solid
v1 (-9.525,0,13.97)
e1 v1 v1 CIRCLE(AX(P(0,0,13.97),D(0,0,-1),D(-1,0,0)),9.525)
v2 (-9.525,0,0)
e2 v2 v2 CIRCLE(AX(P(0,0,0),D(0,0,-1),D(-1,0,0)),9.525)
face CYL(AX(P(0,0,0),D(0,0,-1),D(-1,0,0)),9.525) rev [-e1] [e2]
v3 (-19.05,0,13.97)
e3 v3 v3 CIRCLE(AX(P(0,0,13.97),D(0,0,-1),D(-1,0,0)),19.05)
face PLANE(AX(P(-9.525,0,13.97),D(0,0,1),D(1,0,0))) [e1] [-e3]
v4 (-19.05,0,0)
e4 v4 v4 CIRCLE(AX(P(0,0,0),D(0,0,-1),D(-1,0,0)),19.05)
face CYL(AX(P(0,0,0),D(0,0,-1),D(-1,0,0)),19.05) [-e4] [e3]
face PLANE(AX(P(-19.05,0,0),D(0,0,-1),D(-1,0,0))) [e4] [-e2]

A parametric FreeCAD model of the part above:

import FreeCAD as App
import Part
import Sketcher

V = App.Vector
Q = App.Units.Quantity

doc = App.newDocument("Part")
params = doc.addObject("Spreadsheet::Sheet", "Params")
for row, (alias, value) in enumerate([
    ("sketch1_height", "0.55 in"),
    ("sketch1_width", "0.375 in"),
    ("revolution_angle", "360 deg"),
], start=1):
    params.set(f"A{row}", alias)
    params.set(f"B{row}", "=" + value)
    params.setAlias(f"B{row}", alias)

body = doc.addObject("PartDesign::Body", "Body")

# Sketch on XZ plane
sketch1 = doc.addObject("Sketcher::SketchObject", "Sketch")
body.addObject(sketch1)
sketch1.AttachmentSupport = (doc.XZ_Plane, [""])
sketch1.MapMode = "FlatFace"
sketch1.addGeometry(Part.LineSegment(V(-19, 0, 0), V(-19, 14, 0)), False)
sketch1.addGeometry(Part.LineSegment(V(-19, 14, 0), V(-10, 14, 0)), False)
sketch1.addGeometry(Part.LineSegment(V(-10, 14, 0), V(-10, 0, 0)), False)
sketch1.addGeometry(Part.LineSegment(V(-10, 0, 0), V(-19, 0, 0)), False)
sketch1.addConstraint(Sketcher.Constraint("Coincident", 0, 2, 1, 1))
sketch1.addConstraint(Sketcher.Constraint("Coincident", 1, 2, 2, 1))
sketch1.addConstraint(Sketcher.Constraint("Coincident", 2, 2, 3, 1))
sketch1.addConstraint(Sketcher.Constraint("Coincident", 3, 2, 0, 1))
sketch1.addConstraint(Sketcher.Constraint("Vertical", 0))
sketch1.addConstraint(Sketcher.Constraint("Horizontal", 1))
sketch1.addConstraint(Sketcher.Constraint("Vertical", 2))
sketch1.addConstraint(Sketcher.Constraint("Horizontal", 3))
sketch1.addConstraint(Sketcher.Constraint("PointOnObject", 2, 2, -1))
sketch1.addConstraint(Sketcher.Constraint("DistanceY", 0, 1, 0, 2, Q("0.55 in")))
sketch1.addConstraint(Sketcher.Constraint("DistanceX", 1, 1, 1, 2, Q("0.375 in")))
sketch1.addConstraint(Sketcher.Constraint("DistanceX", 0, 2, -1, 1, Q("0.75 in")))
sketch1.setExpression("Constraints[9]", "Params.sketch1_height")
sketch1.setExpression("Constraints[10]", "Params.sketch1_width")
revolution = doc.addObject("PartDesign::Revolution", "Revolution")
body.addObject(revolution)
revolution.Profile = sketch1
revolution.ReferenceAxis = (sketch1, ["V_Axis"])
revolution.setExpression("Angle", "Params.revolution_angle")

doc.recompute()
